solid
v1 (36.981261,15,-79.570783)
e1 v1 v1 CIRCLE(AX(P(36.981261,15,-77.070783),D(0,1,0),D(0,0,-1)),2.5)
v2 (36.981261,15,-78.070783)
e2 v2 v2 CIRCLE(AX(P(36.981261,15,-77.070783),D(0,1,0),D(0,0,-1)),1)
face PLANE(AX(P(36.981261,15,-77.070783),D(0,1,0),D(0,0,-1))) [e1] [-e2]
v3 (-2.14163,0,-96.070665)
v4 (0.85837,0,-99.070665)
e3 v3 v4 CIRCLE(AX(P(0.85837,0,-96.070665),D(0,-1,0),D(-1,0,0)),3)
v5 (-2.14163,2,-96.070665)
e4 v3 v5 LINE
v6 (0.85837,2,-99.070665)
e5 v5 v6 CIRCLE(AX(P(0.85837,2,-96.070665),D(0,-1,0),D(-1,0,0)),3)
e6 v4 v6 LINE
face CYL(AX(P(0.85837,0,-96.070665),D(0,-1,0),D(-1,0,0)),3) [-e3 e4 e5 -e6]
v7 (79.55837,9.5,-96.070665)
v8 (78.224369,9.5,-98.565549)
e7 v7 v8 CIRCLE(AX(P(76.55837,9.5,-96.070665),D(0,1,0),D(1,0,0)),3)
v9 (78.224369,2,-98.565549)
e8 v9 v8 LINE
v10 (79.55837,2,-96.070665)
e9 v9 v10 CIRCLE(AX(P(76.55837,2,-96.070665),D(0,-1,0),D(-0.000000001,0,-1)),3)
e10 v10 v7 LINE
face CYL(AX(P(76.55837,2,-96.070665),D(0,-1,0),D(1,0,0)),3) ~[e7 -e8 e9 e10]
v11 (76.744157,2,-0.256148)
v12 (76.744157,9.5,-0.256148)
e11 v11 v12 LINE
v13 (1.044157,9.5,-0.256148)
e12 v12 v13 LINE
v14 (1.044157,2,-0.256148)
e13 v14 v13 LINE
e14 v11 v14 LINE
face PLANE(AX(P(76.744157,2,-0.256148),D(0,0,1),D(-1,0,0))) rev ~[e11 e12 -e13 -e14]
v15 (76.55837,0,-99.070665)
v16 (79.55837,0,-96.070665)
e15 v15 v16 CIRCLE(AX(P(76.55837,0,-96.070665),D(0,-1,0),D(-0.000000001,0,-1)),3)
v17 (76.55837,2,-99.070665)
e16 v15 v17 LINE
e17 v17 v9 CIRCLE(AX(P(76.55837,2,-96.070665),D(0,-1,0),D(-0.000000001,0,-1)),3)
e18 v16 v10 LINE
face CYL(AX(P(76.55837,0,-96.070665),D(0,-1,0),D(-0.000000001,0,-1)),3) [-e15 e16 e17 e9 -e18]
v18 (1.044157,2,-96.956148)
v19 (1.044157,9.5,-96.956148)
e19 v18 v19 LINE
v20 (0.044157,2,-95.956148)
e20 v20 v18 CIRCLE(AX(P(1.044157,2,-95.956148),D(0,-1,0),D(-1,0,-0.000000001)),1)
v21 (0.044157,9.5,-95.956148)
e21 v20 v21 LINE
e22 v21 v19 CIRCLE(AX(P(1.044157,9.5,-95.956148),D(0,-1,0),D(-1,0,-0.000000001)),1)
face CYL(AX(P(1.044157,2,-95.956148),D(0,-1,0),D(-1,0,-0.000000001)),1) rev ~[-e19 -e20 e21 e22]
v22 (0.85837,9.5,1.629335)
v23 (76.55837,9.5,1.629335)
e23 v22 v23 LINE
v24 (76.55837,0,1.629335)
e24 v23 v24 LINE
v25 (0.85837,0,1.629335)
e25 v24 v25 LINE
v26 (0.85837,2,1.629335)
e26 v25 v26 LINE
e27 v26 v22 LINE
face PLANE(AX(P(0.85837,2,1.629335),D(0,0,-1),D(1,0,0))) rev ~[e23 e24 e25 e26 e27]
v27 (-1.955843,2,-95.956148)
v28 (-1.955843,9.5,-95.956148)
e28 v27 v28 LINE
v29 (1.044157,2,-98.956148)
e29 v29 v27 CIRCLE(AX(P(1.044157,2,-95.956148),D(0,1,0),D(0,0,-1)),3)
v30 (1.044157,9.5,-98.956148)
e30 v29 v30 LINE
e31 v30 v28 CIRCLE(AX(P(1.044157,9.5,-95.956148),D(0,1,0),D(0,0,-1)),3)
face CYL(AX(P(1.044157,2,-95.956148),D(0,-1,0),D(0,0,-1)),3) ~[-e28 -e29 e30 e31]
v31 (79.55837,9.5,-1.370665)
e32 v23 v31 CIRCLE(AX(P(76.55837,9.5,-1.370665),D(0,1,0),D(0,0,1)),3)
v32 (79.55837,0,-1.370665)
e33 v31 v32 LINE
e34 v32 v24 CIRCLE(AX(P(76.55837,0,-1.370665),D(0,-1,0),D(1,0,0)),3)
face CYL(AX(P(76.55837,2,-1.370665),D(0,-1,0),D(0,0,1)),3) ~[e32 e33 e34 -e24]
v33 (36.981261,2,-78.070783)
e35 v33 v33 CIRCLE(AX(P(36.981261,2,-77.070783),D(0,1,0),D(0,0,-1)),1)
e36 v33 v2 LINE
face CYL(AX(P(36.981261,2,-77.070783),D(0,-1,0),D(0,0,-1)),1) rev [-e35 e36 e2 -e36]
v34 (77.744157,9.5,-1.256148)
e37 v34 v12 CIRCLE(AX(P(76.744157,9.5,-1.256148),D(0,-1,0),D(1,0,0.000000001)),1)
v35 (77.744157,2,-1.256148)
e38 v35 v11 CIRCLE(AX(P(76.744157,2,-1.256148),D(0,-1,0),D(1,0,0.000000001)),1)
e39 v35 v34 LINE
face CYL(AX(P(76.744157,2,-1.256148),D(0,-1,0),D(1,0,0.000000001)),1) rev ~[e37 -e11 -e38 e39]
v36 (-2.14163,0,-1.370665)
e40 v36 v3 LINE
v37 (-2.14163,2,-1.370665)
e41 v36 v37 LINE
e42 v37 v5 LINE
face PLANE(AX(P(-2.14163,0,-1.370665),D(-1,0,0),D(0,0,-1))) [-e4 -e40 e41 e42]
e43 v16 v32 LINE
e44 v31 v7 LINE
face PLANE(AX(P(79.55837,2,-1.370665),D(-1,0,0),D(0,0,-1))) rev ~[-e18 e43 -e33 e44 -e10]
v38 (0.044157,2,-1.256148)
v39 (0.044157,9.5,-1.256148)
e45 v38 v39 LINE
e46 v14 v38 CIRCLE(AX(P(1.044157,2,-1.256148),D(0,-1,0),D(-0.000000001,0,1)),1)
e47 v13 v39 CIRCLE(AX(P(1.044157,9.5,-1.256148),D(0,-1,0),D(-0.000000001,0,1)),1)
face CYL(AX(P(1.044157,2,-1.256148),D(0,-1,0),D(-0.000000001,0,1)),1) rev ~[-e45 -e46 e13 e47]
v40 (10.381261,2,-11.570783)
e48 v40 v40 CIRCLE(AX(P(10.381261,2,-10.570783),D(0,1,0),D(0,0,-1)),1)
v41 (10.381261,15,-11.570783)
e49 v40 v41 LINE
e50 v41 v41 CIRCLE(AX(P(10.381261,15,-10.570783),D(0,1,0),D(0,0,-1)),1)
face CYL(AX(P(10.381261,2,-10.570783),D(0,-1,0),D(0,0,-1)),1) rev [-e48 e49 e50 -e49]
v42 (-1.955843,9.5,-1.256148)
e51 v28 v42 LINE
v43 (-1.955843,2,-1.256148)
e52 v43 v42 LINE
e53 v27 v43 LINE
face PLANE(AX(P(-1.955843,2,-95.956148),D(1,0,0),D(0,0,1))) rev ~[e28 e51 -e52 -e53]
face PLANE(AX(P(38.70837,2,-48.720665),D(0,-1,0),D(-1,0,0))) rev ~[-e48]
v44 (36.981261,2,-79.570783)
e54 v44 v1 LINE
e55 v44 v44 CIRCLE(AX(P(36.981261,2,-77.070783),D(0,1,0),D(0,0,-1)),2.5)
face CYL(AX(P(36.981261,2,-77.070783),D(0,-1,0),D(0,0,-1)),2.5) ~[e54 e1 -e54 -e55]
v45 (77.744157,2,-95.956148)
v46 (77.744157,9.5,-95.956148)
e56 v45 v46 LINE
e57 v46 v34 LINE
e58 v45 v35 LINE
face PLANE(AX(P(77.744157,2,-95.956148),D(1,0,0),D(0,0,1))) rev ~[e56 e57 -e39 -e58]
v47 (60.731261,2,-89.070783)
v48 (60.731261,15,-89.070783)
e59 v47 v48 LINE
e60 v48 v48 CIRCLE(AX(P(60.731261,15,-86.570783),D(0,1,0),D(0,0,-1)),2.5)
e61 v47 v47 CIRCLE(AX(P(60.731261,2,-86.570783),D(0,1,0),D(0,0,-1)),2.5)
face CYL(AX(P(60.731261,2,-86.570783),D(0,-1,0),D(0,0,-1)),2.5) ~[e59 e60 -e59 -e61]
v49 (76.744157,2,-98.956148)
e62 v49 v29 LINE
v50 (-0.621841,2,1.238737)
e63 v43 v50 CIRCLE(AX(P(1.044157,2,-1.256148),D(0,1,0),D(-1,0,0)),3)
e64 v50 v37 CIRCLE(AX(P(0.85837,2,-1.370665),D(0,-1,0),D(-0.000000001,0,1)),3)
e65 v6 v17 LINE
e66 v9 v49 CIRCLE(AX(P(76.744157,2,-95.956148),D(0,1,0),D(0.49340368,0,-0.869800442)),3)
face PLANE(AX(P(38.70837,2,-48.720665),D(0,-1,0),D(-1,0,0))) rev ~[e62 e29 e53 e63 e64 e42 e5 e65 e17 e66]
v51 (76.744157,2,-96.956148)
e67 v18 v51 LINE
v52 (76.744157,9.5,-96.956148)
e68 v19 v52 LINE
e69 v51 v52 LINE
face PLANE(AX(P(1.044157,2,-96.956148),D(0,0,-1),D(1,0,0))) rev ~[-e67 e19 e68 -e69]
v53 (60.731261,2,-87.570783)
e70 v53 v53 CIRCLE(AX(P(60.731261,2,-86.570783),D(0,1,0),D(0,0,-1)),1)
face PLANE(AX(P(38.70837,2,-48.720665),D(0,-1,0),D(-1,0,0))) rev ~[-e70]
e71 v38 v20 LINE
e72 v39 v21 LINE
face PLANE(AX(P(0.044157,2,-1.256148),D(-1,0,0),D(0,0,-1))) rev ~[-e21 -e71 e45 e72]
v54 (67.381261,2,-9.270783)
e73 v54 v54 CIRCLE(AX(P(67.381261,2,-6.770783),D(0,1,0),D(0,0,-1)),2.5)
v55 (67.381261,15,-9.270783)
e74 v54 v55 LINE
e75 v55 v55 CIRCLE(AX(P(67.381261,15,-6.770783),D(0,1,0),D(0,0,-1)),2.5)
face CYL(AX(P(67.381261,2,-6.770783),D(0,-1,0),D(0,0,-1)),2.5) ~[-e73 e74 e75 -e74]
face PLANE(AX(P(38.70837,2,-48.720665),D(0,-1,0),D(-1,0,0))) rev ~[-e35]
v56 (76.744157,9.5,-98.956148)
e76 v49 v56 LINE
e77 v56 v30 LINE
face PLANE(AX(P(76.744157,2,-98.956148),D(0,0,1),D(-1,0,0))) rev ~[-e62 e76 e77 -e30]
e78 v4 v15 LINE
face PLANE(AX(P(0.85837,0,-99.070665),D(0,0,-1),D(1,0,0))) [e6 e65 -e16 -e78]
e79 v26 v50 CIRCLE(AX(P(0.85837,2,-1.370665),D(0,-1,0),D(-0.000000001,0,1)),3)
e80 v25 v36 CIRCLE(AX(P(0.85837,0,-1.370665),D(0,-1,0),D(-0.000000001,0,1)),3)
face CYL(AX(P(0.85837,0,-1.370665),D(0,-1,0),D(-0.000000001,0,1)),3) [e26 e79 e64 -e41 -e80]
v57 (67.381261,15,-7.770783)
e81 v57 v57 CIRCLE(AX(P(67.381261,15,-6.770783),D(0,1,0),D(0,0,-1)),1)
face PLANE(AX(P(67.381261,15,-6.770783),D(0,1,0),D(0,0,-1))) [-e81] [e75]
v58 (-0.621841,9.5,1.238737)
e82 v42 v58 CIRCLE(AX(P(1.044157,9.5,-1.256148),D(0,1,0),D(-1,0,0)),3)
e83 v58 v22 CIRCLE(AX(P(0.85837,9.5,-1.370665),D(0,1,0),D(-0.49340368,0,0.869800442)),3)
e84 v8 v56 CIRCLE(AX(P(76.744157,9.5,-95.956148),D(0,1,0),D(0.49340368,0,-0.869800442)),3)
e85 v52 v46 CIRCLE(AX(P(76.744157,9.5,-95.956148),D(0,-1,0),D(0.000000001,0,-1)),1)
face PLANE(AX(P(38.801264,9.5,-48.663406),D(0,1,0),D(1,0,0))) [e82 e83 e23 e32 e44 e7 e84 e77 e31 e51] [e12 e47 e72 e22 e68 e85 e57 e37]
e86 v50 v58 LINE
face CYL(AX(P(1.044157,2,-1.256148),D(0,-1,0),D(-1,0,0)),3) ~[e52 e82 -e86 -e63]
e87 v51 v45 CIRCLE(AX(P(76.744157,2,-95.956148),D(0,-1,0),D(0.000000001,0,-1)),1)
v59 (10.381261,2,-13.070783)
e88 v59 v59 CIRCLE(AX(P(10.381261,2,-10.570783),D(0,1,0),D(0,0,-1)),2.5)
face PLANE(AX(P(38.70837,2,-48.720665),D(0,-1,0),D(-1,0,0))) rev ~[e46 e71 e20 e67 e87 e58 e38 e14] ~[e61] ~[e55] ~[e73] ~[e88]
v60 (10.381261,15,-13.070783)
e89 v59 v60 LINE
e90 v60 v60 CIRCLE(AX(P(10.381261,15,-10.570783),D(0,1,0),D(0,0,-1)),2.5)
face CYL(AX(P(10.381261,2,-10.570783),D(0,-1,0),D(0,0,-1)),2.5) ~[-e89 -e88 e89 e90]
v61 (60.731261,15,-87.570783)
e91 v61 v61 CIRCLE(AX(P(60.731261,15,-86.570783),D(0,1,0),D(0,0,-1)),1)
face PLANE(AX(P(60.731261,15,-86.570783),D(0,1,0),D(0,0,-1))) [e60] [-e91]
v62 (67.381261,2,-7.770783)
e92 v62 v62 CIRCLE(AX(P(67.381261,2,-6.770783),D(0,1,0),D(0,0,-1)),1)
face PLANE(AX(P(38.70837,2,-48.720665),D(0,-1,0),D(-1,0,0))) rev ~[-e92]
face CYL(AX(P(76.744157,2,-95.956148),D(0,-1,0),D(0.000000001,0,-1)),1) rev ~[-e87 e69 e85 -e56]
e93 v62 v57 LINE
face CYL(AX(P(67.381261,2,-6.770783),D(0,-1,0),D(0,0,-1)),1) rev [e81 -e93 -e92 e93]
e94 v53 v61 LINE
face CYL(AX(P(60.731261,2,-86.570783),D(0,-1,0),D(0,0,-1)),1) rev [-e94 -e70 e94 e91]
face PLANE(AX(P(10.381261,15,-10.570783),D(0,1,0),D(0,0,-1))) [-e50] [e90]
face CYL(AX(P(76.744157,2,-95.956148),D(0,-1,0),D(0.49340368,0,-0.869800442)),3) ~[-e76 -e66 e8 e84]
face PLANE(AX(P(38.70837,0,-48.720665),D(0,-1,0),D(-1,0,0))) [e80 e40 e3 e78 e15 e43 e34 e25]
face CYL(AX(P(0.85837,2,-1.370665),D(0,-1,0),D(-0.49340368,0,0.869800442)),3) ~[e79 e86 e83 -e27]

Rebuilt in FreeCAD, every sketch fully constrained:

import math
import FreeCAD as App
import Part
import Sketcher
Q = App.Units.Quantity

doc = App.newDocument("Part")
body = doc.addObject("PartDesign::Body", "Body")

sketch1 = body.newObject("Sketcher::SketchObject", "Sketch")
sketch1.AttachmentSupport = (doc.getObject("XZ_Plane"), [""])
sketch1.MapMode = "FlatFace"
sketch1.addGeometry([
    Part.LineSegment(App.Vector(76.6, -99.1, 0), App.Vector(0.9, -99.1, 0)),
    Part.ArcOfCircle(Part.Circle(App.Vector(0.9, -96.1, 0), App.Vector(0, 0, 1), 3), math.radians(180), math.radians(270)),
    Part.LineSegment(App.Vector(-2.1, -96.1, 0), App.Vector(-2.1, -1.4, 0)),
    Part.ArcOfCircle(Part.Circle(App.Vector(0.9, -1.4, 0), App.Vector(0, 0, 1), 3), math.radians(90), math.radians(180)),
    Part.LineSegment(App.Vector(0.9, 1.6, 0), App.Vector(76.6, 1.6, 0)),
    Part.ArcOfCircle(Part.Circle(App.Vector(76.6, -1.4, 0), App.Vector(0, 0, 1), 3), math.radians(0), math.radians(90)),
    Part.LineSegment(App.Vector(79.6, -1.4, 0), App.Vector(79.6, -96.1, 0)),
    Part.ArcOfCircle(Part.Circle(App.Vector(76.6, -96.1, 0), App.Vector(0, 0, 1), 3), math.radians(-90), math.radians(0)),
], False)
sketch1.addConstraint([
    Sketcher.Constraint("Tangent", 0, 2, 1, 2),
    Sketcher.Constraint("Tangent", 1, 1, 2, 1),
    Sketcher.Constraint("Tangent", 2, 2, 3, 2),
    Sketcher.Constraint("Tangent", 3, 1, 4, 1),
    Sketcher.Constraint("Tangent", 4, 2, 5, 2),
    Sketcher.Constraint("Tangent", 5, 1, 6, 1),
    Sketcher.Constraint("Tangent", 6, 2, 7, 2),
    Sketcher.Constraint("Tangent", 7, 1, 0, 1),
    Sketcher.Constraint("Horizontal", 0),
    Sketcher.Constraint("Vertical", 2),
    Sketcher.Constraint("Horizontal", 4),
    Sketcher.Constraint("Vertical", 6),
    Sketcher.Constraint("Equal", 1, 3),
    Sketcher.Constraint("Equal", 3, 5),
    Sketcher.Constraint("Equal", 5, 7),
    Sketcher.Constraint("Radius", 1, Q("3 mm")),
    Sketcher.Constraint("DistanceX", 0, 2, 0, 1, Q("75.7 mm")),
    Sketcher.Constraint("DistanceY", 2, 1, 2, 2, Q("94.7 mm")),
    Sketcher.Constraint("DistanceX", -1, 1, 1, 3, Q("0.85837 mm")),
    Sketcher.Constraint("DistanceY", 1, 3, -1, 1, Q("96.070665 mm")),
])
pad1 = body.newObject("PartDesign::Pad", "Pad")
pad1.Profile = sketch1
pad1.Length = 2
pad1.Reversed = True

sketch2 = body.newObject("Sketcher::SketchObject", "Sketch001")
sketch2.AttachmentSupport = (doc.getObject("XZ_Plane"), [""])
sketch2.MapMode = "FlatFace"
sketch2.AttachmentOffset = App.Placement(App.Vector(0, 0, -2), App.Rotation())
sketch2.addGeometry([
    Part.Circle(App.Vector(10.4, -10.6, 0), App.Vector(0, 0, 1), 2.5),
    Part.Circle(App.Vector(10.4, -10.6, 0), App.Vector(0, 0, 1), 1),
    Part.Circle(App.Vector(67.4, -6.8, 0), App.Vector(0, 0, 1), 2.5),
    Part.Circle(App.Vector(67.4, -6.8, 0), App.Vector(0, 0, 1), 1),
    Part.Circle(App.Vector(60.7, -86.6, 0), App.Vector(0, 0, 1), 2.5),
    Part.Circle(App.Vector(60.7, -86.6, 0), App.Vector(0, 0, 1), 1),
    Part.Circle(App.Vector(37, -77.1, 0), App.Vector(0, 0, 1), 2.5),
    Part.Circle(App.Vector(37, -77.1, 0), App.Vector(0, 0, 1), 1),
], False)
sketch2.addConstraint([
    Sketcher.Constraint("Coincident", 1, 3, 0, 3),
    Sketcher.Constraint("Coincident", 3, 3, 2, 3),
    Sketcher.Constraint("Coincident", 5, 3, 4, 3),
    Sketcher.Constraint("Coincident", 7, 3, 6, 3),
    Sketcher.Constraint("Equal", 0, 2),
    Sketcher.Constraint("Equal", 1, 3),
    Sketcher.Constraint("Equal", 2, 4),
    Sketcher.Constraint("Equal", 3, 5),
    Sketcher.Constraint("Equal", 4, 6),
    Sketcher.Constraint("Equal", 5, 7),
    Sketcher.Constraint("Diameter", 0, Q("5 mm")),
    Sketcher.Constraint("Diameter", 1, Q("2 mm")),
    Sketcher.Constraint("DistanceX", 0, 3, 2, 3, Q("57 mm")),
    Sketcher.Constraint("DistanceY", 4, 3, 0, 3, Q("76 mm")),
    Sketcher.Constraint("DistanceY", 0, 3, 2, 3, Q("3.8 mm")),
    Sketcher.Constraint("DistanceY", 4, 3, 6, 3, Q("9.5 mm")),
    Sketcher.Constraint("DistanceX", 0, 3, 6, 3, Q("26.6 mm")),
    Sketcher.Constraint("DistanceX", 4, 3, 2, 3, Q("6.65 mm")),
    Sketcher.Constraint("DistanceX", -1, 1, 0, 3, Q("10.381261 mm")),
    Sketcher.Constraint("DistanceY", 0, 3, -1, 1, Q("10.570783 mm")),
])
pad2 = body.newObject("PartDesign::Pad", "Pad001")
pad2.Profile = sketch2
pad2.Length = 13
pad2.Reversed = True

sketch3 = body.newObject("Sketcher::SketchObject", "Sketch002")
sketch3.AttachmentSupport = (doc.getObject("XZ_Plane"), [""])
sketch3.MapMode = "FlatFace"
sketch3.AttachmentOffset = App.Placement(App.Vector(0, 0, -2), App.Rotation())
sketch3.addGeometry([
    Part.LineSegment(App.Vector(76.7, -99, 0), App.Vector(1, -99, 0)),
    Part.ArcOfCircle(Part.Circle(App.Vector(1, -96, 0), App.Vector(0, 0, 1), 3), math.radians(180), math.radians(270)),
    Part.LineSegment(App.Vector(-2, -96, 0), App.Vector(-2, -1.3, 0)),
    Part.ArcOfCircle(Part.Circle(App.Vector(1, -1.3, 0), App.Vector(0, 0, 1), 3), math.radians(124), math.radians(180)),
    Part.ArcOfCircle(Part.Circle(App.Vector(0.9, -1.4, 0), App.Vector(0, 0, 1), 3), math.radians(90), math.radians(120)),
    Part.LineSegment(App.Vector(0.9, 1.6, 0), App.Vector(76.6, 1.6, 0)),
    Part.ArcOfCircle(Part.Circle(App.Vector(76.6, -1.4, 0), App.Vector(0, 0, 1), 3), math.radians(0), math.radians(90)),
    Part.LineSegment(App.Vector(79.6, -1.4, 0), App.Vector(79.6, -96.1, 0)),
    Part.ArcOfCircle(Part.Circle(App.Vector(76.6, -96.1, 0), App.Vector(0, 0, 1), 3), math.radians(-56), math.radians(0)),
    Part.ArcOfCircle(Part.Circle(App.Vector(76.7, -96, 0), App.Vector(0, 0, 1), 3), math.radians(-90), math.radians(-60)),
    Part.LineSegment(App.Vector(0, -1.3, 0), App.Vector(0, -96, 0)),
    Part.ArcOfCircle(Part.Circle(App.Vector(1, -96, 0), App.Vector(0, 0, 1), 1), math.radians(-180), math.radians(-90)),
    Part.LineSegment(App.Vector(1, -97, 0), App.Vector(76.7, -97, 0)),
    Part.ArcOfCircle(Part.Circle(App.Vector(76.7, -96, 0), App.Vector(0, 0, 1), 1), math.radians(-90), math.radians(0)),
    Part.LineSegment(App.Vector(77.7, -96, 0), App.Vector(77.7, -1.3, 0)),
    Part.ArcOfCircle(Part.Circle(App.Vector(76.7, -1.3, 0), App.Vector(0, 0, 1), 1), math.radians(0), math.radians(90)),
    Part.LineSegment(App.Vector(76.7, -0.3, 0), App.Vector(1, -0.3, 0)),
    Part.ArcOfCircle(Part.Circle(App.Vector(1, -1.3, 0), App.Vector(0, 0, 1), 1), math.radians(90), math.radians(180)),
], False)
sketch3.addConstraint([
    Sketcher.Constraint("Tangent", 0, 2, 1, 2),
    Sketcher.Constraint("Tangent", 1, 1, 2, 1),
    Sketcher.Constraint("Tangent", 2, 2, 3, 2),
    Sketcher.Constraint("Coincident", 3, 1, 4, 2),
    Sketcher.Constraint("Tangent", 4, 1, 5, 1),
    Sketcher.Constraint("Tangent", 5, 2, 6, 2),
    Sketcher.Constraint("Tangent", 6, 1, 7, 1),
    Sketcher.Constraint("Tangent", 7, 2, 8, 2),
    Sketcher.Constraint("Coincident", 8, 1, 9, 2),
    Sketcher.Constraint("Tangent", 9, 1, 0, 1),
    Sketcher.Constraint("Tangent", 10, 2, 11, 1),
    Sketcher.Constraint("Tangent", 11, 2, 12, 1),
    Sketcher.Constraint("Tangent", 12, 2, 13, 1),
    Sketcher.Constraint("Tangent", 13, 2, 14, 1),
    Sketcher.Constraint("Tangent", 14, 2, 15, 1),
    Sketcher.Constraint("Tangent", 15, 2, 16, 1),
    Sketcher.Constraint("Tangent", 16, 2, 17, 1),
    Sketcher.Constraint("Tangent", 17, 2, 10, 1),
    Sketcher.Constraint("Horizontal", 0),
    Sketcher.Constraint("Vertical", 2),
    Sketcher.Constraint("Horizontal", 5),
    Sketcher.Constraint("Vertical", 7),
    Sketcher.Constraint("Vertical", 10),
    Sketcher.Constraint("Horizontal", 12),
    Sketcher.Constraint("Vertical", 14),
    Sketcher.Constraint("Horizontal", 16),
    Sketcher.Constraint("Coincident", 11, 3, 1, 3),
    Sketcher.Constraint("Coincident", 13, 3, 9, 3),
    Sketcher.Constraint("Coincident", 17, 3, 3, 3),
    Sketcher.Constraint("Equal", 1, 3),
    Sketcher.Constraint("Equal", 3, 4),
    Sketcher.Constraint("Equal", 4, 6),
    Sketcher.Constraint("Equal", 6, 8),
    Sketcher.Constraint("Equal", 8, 9),
    Sketcher.Constraint("Equal", 13, 15),
    Sketcher.Constraint("Equal", 0, 5),
    Sketcher.Constraint("Equal", 2, 7),
    Sketcher.Constraint("Radius", 1, Q("3 mm")),
    Sketcher.Constraint("Radius", 11, Q("1 mm")),
    Sketcher.Constraint("DistanceX", 0, 2, 0, 1, Q("75.7 mm")),
    Sketcher.Constraint("DistanceY", 2, 1, 2, 2, Q("94.7 mm")),
    Sketcher.Constraint("DistanceX", 2, 2, 3, 1, Q("1.334002 mm")),
    Sketcher.Constraint("DistanceY", 4, 3, 3, 1, Q("2.609401 mm")),
    Sketcher.Constraint("DistanceX", -1, 1, 4, 3, Q("0.85837 mm")),
    Sketcher.Constraint("DistanceY", 8, 1, -1, 1, Q("98.565549 mm")),
])
pad3 = body.newObject("PartDesign::Pad", "Pad002")
pad3.Profile = sketch3
pad3.Length = 7.5
pad3.Reversed = True

doc.recompute()
